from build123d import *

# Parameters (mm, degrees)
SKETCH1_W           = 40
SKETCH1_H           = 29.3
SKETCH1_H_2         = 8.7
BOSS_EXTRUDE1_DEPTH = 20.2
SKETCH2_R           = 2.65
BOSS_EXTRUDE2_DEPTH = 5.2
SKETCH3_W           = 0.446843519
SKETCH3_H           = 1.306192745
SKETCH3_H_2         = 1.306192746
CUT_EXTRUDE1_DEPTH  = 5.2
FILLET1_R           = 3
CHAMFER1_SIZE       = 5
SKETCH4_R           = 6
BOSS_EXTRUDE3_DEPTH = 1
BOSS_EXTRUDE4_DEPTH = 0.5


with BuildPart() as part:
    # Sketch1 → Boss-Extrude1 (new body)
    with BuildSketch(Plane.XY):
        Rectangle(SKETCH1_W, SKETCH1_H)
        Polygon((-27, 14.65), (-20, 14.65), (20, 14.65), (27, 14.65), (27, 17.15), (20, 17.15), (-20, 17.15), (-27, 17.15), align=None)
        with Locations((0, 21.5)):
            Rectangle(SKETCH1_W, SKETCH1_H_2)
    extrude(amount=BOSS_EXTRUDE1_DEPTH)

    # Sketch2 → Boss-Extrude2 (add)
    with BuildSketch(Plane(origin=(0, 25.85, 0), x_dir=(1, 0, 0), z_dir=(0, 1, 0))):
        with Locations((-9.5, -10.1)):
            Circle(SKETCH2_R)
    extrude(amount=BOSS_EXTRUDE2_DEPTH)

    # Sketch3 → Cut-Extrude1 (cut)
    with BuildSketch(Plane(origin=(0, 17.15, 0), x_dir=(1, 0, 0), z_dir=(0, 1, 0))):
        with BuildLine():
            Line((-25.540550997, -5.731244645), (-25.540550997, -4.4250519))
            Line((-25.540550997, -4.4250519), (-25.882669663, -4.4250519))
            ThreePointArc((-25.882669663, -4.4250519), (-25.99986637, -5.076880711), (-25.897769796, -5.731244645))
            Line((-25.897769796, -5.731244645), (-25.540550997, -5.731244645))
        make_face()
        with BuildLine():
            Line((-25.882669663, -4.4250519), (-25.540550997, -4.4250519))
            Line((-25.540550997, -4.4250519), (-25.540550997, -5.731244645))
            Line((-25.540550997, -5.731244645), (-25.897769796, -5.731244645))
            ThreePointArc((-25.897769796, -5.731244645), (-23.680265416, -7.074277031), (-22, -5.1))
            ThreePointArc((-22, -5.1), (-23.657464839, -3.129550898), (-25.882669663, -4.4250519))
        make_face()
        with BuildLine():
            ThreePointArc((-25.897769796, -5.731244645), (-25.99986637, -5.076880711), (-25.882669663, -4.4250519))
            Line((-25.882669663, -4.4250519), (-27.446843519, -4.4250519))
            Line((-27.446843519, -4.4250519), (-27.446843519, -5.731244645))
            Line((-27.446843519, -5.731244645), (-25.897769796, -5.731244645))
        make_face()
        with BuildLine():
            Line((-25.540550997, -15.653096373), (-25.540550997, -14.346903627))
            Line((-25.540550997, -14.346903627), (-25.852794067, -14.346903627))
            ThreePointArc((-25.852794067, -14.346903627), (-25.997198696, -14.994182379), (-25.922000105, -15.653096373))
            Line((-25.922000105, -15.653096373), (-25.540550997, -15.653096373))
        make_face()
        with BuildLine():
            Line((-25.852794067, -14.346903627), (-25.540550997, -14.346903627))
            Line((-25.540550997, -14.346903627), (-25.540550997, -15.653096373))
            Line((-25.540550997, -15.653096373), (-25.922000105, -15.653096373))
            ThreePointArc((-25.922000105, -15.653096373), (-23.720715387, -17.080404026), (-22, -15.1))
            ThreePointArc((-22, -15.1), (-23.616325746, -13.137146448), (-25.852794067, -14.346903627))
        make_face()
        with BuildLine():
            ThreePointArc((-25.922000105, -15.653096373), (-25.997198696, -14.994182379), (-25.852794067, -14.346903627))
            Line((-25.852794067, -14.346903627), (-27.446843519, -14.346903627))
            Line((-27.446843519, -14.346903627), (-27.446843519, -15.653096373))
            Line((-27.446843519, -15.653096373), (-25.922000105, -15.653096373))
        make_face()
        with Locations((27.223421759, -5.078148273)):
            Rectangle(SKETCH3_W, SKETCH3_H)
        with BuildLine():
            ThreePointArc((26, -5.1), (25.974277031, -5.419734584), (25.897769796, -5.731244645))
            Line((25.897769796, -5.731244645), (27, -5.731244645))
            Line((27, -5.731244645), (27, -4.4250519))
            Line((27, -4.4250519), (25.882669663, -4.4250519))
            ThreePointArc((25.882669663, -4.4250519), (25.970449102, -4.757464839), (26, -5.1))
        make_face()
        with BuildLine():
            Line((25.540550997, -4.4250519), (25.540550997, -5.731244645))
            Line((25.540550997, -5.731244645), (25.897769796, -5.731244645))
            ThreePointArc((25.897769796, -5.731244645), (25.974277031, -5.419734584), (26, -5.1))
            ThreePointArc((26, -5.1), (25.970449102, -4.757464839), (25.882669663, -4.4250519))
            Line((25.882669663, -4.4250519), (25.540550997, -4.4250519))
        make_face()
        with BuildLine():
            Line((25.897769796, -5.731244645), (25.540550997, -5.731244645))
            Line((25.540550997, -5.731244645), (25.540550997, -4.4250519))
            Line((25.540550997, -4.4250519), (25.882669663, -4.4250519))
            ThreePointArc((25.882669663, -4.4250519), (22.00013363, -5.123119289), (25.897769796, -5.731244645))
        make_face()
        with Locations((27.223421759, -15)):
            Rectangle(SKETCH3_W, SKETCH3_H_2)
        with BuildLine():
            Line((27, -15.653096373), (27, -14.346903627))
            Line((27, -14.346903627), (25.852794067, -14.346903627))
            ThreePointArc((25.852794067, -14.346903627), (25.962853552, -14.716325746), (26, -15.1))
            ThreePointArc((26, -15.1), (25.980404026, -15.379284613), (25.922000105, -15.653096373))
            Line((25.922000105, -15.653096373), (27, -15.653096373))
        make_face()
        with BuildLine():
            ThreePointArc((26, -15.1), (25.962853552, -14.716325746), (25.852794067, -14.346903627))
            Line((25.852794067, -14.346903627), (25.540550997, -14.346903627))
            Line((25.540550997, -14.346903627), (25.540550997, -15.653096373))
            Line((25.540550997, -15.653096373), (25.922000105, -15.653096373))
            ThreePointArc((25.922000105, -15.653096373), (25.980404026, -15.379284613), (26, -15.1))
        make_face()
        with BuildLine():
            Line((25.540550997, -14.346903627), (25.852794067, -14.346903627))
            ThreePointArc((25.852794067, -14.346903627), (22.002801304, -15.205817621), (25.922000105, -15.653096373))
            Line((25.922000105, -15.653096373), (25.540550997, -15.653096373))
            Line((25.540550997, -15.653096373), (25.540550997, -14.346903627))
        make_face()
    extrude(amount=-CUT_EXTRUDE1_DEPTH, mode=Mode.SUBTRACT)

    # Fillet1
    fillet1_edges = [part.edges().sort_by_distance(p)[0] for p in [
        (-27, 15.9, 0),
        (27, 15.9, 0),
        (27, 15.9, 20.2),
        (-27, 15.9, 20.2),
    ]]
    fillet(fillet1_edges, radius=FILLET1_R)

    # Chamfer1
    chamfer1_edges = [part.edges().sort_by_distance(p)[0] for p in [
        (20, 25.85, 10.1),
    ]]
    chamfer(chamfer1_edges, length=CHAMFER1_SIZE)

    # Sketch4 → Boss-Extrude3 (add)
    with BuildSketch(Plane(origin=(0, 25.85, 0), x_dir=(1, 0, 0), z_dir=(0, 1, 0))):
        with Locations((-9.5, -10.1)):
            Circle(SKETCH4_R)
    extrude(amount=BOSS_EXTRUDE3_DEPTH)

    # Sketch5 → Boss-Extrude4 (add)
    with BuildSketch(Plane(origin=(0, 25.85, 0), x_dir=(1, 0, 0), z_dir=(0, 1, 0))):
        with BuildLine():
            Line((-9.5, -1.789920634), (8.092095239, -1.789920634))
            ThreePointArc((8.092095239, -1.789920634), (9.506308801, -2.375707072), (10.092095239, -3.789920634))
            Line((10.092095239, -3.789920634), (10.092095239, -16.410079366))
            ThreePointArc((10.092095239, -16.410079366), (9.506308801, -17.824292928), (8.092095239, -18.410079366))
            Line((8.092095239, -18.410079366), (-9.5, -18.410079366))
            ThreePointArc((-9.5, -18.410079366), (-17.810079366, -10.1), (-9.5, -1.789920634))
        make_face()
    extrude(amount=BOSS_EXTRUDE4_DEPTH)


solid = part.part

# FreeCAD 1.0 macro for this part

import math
import FreeCAD as App
import Part
import Sketcher
from FreeCAD import Vector


def edges_at(feature, points):
    """Names of the edges that pass closest to the given points."""
    edges = feature.Shape.Edges
    near = lambda p: min(range(len(edges)), key=lambda i: edges[i].distToShape(Part.Vertex(*p))[0])
    return sorted({f"Edge{near(p) + 1}" for p in points})


def add_polygon(sketch, points):
    """Adds a closed chain of lines whose ends are joined by coincident constraints."""
    first, n = sketch.GeometryCount, len(points)
    for a, b in zip(points, points[1:] + points[:1]):
        sketch.addGeometry(Part.LineSegment(App.Vector(*a, 0), App.Vector(*b, 0)), False)
    for i in range(n):
        sketch.addConstraint(Sketcher.Constraint("Coincident", first + i, 2, first + (i + 1) % n, 1))

doc = App.newDocument("Part")
params = doc.addObject("Spreadsheet::Sheet", "Params")
for row, (alias, value) in enumerate([
    ("sketch1_width", "40 mm"),
    ("sketch1_width2", "7 mm"),
    ("sketch1_height", "29.3 mm"),
    ("sketch1_height2", "2.5 mm"),
    ("sketch1_height3", "8.7 mm"),
    ("pad1_length", "20.2 mm"),
    ("sketch2_diameter", "5.3 mm"),
    ("pad2_length", "5.2 mm"),
    ("sketch3_radius", "2 mm"),
    ("pocket1_length", "5.2 mm"),
    ("fillet_radius", "3 mm"),
    ("chamfer_size", "5 mm"),
    ("sketch4_diameter", "12 mm"),
    ("pad3_length", "1 mm"),
    ("sketch5_radius", "2 mm"),
    ("pad4_length", "0.5 mm"),
], start=1):
    params.set(f"A{row}", alias)
    params.set(f"B{row}", "=" + value)
    params.setAlias(f"B{row}", alias)

body = doc.addObject("PartDesign::Body", "Body")

# Sketch on XY plane
sketch1 = doc.addObject("Sketcher::SketchObject", "Sketch")
body.addObject(sketch1)
sketch1.AttachmentSupport = (doc.XY_Plane, [""])
sketch1.MapMode = "FlatFace"
add_polygon(sketch1, [(-20, 14.7), (-20, -14.7), (20, -14.7), (20, 14.7), (27, 14.7), (27, 17.1), (20, 17.1), (20, 25.9), (-20, 25.9), (-20, 17.1), (-27, 17.1), (-27, 14.7)])  # lines 0-11
sketch1.addConstraint(Sketcher.Constraint("Vertical", 0))
sketch1.addConstraint(Sketcher.Constraint("Horizontal", 1))
sketch1.addConstraint(Sketcher.Constraint("Vertical", 2))
sketch1.addConstraint(Sketcher.Constraint("Horizontal", 3))
sketch1.addConstraint(Sketcher.Constraint("Vertical", 4))
sketch1.addConstraint(Sketcher.Constraint("Horizontal", 5))
sketch1.addConstraint(Sketcher.Constraint("Vertical", 6))
sketch1.addConstraint(Sketcher.Constraint("Horizontal", 7))
sketch1.addConstraint(Sketcher.Constraint("Vertical", 8))
sketch1.addConstraint(Sketcher.Constraint("Horizontal", 9))
sketch1.addConstraint(Sketcher.Constraint("Vertical", 10))
sketch1.addConstraint(Sketcher.Constraint("Horizontal", 11))
sketch1.addConstraint(Sketcher.Constraint("Symmetric", 0, 2, 2, 2, -1, 1))
sketch1.addConstraint(Sketcher.Constraint("Symmetric", 5, 2, 8, 2, -2))
sketch1.addConstraint(Sketcher.Constraint("Symmetric", 3, 2, 10, 2, -2))
sketch1.addConstraint(Sketcher.Constraint("Vertical", 2, 2, 5, 2))
sketch1.addConstraint(Sketcher.Constraint("DistanceX", 1, 1, 1, 2, 40.0))
sketch1.addConstraint(Sketcher.Constraint("DistanceX", 3, 1, 3, 2, 7.0))
sketch1.addConstraint(Sketcher.Constraint("DistanceY", 0, 2, 0, 1, 29.3))
sketch1.addConstraint(Sketcher.Constraint("DistanceY", 4, 1, 4, 2, 2.5))
sketch1.addConstraint(Sketcher.Constraint("DistanceY", 6, 1, 6, 2, 8.7))
sketch1.setExpression("Constraints[28]", "Params.sketch1_width")
sketch1.setExpression("Constraints[29]", "Params.sketch1_width2")
sketch1.setExpression("Constraints[30]", "Params.sketch1_height")
sketch1.setExpression("Constraints[31]", "Params.sketch1_height2")
sketch1.setExpression("Constraints[32]", "Params.sketch1_height3")
pad1 = doc.addObject("PartDesign::Pad", "Pad")
body.addObject(pad1)
pad1.Profile = sketch1
pad1.setExpression("Length", "Params.pad1_length")

# Sketch on XZ plane
sketch2 = doc.addObject("Sketcher::SketchObject", "Sketch001")
body.addObject(sketch2)
sketch2.AttachmentSupport = (doc.XZ_Plane, [""])
sketch2.MapMode = "FlatFace"
sketch2.AttachmentOffset = App.Placement(Vector(0, 0, -25.85), App.Rotation())
sketch2.addGeometry(Part.Circle(Vector(-9.5, 10.1, 0), Vector(0, 0, 1), 2.6), False)
sketch2.addConstraint(Sketcher.Constraint("Diameter", 0, 5.3))
sketch2.addConstraint(Sketcher.Constraint("DistanceX", 0, 3, -1, 1, 9.5))
sketch2.addConstraint(Sketcher.Constraint("DistanceY", -1, 1, 0, 3, 10.1))
sketch2.setExpression("Constraints[0]", "Params.sketch2_diameter")
pad2 = doc.addObject("PartDesign::Pad", "Pad001")
body.addObject(pad2)
pad2.Profile = sketch2
pad2.setExpression("Length", "Params.pad2_length")
pad2.Reversed = True

# Sketch on XZ plane
sketch3 = doc.addObject("Sketcher::SketchObject", "Sketch002")
body.addObject(sketch3)
sketch3.AttachmentSupport = (doc.XZ_Plane, [""])
sketch3.MapMode = "FlatFace"
sketch3.AttachmentOffset = App.Placement(Vector(0, 0, -17.15), App.Rotation())
sketch3.addGeometry(Part.ArcOfCircle(Part.Circle(Vector(-24, 5.1, 0), Vector(0, 0, 1), 2), math.radians(0), math.radians(162)), False)
sketch3.addGeometry(Part.ArcOfCircle(Part.Circle(Vector(-24, 5.1, 0), Vector(0, 0, 1), 2), math.radians(-160), math.radians(0)), False)
sketch3.addGeometry(Part.LineSegment(Vector(-25.88, 4.43, 0), Vector(-27.45, 4.43, 0)), False)
sketch3.addGeometry(Part.LineSegment(Vector(-27.45, 4.43, 0), Vector(-27.45, 5.73, 0)), False)
sketch3.addGeometry(Part.LineSegment(Vector(-27.45, 5.73, 0), Vector(-25.9, 5.73, 0)), False)
sketch3.addGeometry(Part.ArcOfCircle(Part.Circle(Vector(-24, 15.1, 0), Vector(0, 0, 1), 2), math.radians(0), math.radians(164)), False)
sketch3.addGeometry(Part.ArcOfCircle(Part.Circle(Vector(-24, 15.1, 0), Vector(0, 0, 1), 2), math.radians(-158), math.radians(0)), False)
sketch3.addGeometry(Part.LineSegment(Vector(-25.85, 14.35, 0), Vector(-27.45, 14.35, 0)), False)
sketch3.addGeometry(Part.LineSegment(Vector(-27.45, 14.35, 0), Vector(-27.45, 15.65, 0)), False)
sketch3.addGeometry(Part.LineSegment(Vector(-27.45, 15.65, 0), Vector(-25.92, 15.65, 0)), False)
sketch3.addGeometry(Part.LineSegment(Vector(27, 4.43, 0), Vector(25.88, 4.43, 0)), False)
sketch3.addGeometry(Part.ArcOfCircle(Part.Circle(Vector(24, 5.1, 0), Vector(0, 0, 1), 2), math.radians(18), math.radians(340)), False)
sketch3.addGeometry(Part.LineSegment(Vector(25.9, 5.73, 0), Vector(27, 5.73, 0)), False)
sketch3.addGeometry(Part.LineSegment(Vector(27, 5.73, 0), Vector(27.45, 5.73, 0)), False)
sketch3.addGeometry(Part.LineSegment(Vector(27.45, 5.73, 0), Vector(27.45, 4.43, 0)), False)
sketch3.addGeometry(Part.LineSegment(Vector(27.45, 4.43, 0), Vector(27, 4.43, 0)), False)
sketch3.addGeometry(Part.LineSegment(Vector(27.45, 14.35, 0), Vector(25.85, 14.35, 0)), False)
sketch3.addGeometry(Part.ArcOfCircle(Part.Circle(Vector(24, 15.1, 0), Vector(0, 0, 1), 2), math.radians(16), math.radians(338)), False)
sketch3.addGeometry(Part.LineSegment(Vector(25.92, 15.65, 0), Vector(27.45, 15.65, 0)), False)
sketch3.addGeometry(Part.LineSegment(Vector(27.45, 15.65, 0), Vector(27.45, 14.35, 0)), False)
sketch3.addConstraint(Sketcher.Constraint("Tangent", 0, 1, 1, 2))
sketch3.addConstraint(Sketcher.Constraint("Coincident", 1, 1, 2, 1))
sketch3.addConstraint(Sketcher.Constraint("Coincident", 2, 2, 3, 1))
sketch3.addConstraint(Sketcher.Constraint("Coincident", 3, 2, 4, 1))
sketch3.addConstraint(Sketcher.Constraint("Coincident", 4, 2, 0, 2))
sketch3.addConstraint(Sketcher.Constraint("Tangent", 5, 1, 6, 2))
sketch3.addConstraint(Sketcher.Constraint("Coincident", 6, 1, 7, 1))
sketch3.addConstraint(Sketcher.Constraint("Coincident", 7, 2, 8, 1))
sketch3.addConstraint(Sketcher.Constraint("Coincident", 8, 2, 9, 1))
sketch3.addConstraint(Sketcher.Constraint("Coincident", 9, 2, 5, 2))
sketch3.addConstraint(Sketcher.Constraint("Coincident", 10, 2, 11, 2))
sketch3.addConstraint(Sketcher.Constraint("Coincident", 11, 1, 12, 1))
sketch3.addConstraint(Sketcher.Constraint("Coincident", 12, 2, 13, 1))
sketch3.addConstraint(Sketcher.Constraint("Coincident", 13, 2, 14, 1))
sketch3.addConstraint(Sketcher.Constraint("Coincident", 14, 2, 15, 1))
sketch3.addConstraint(Sketcher.Constraint("Coincident", 15, 2, 10, 1))
sketch3.addConstraint(Sketcher.Constraint("Coincident", 16, 2, 17, 2))
sketch3.addConstraint(Sketcher.Constraint("Coincident", 17, 1, 18, 1))
sketch3.addConstraint(Sketcher.Constraint("Coincident", 18, 2, 19, 1))
sketch3.addConstraint(Sketcher.Constraint("Coincident", 19, 2, 16, 1))
sketch3.addConstraint(Sketcher.Constraint("Horizontal", 2))
sketch3.addConstraint(Sketcher.Constraint("Vertical", 3))
sketch3.addConstraint(Sketcher.Constraint("Horizontal", 4))
sketch3.addConstraint(Sketcher.Constraint("Horizontal", 7))
sketch3.addConstraint(Sketcher.Constraint("Vertical", 8))
sketch3.addConstraint(Sketcher.Constraint("Horizontal", 9))
sketch3.addConstraint(Sketcher.Constraint("Horizontal", 10))
sketch3.addConstraint(Sketcher.Constraint("Horizontal", 12))
sketch3.addConstraint(Sketcher.Constraint("Horizontal", 13))
sketch3.addConstraint(Sketcher.Constraint("Vertical", 14))
sketch3.addConstraint(Sketcher.Constraint("Horizontal", 15))
sketch3.addConstraint(Sketcher.Constraint("Horizontal", 16))
sketch3.addConstraint(Sketcher.Constraint("Horizontal", 18))
sketch3.addConstraint(Sketcher.Constraint("Vertical", 19))
sketch3.addConstraint(Sketcher.Constraint("Equal", 0, 1))
sketch3.addConstraint(Sketcher.Constraint("Equal", 1, 5))
sketch3.addConstraint(Sketcher.Constraint("Equal", 5, 6))
sketch3.addConstraint(Sketcher.Constraint("Equal", 6, 11))
sketch3.addConstraint(Sketcher.Constraint("Equal", 11, 17))
sketch3.addConstraint(Sketcher.Constraint("Symmetric", 0, 3, 11, 3, -2))
sketch3.addConstraint(Sketcher.Constraint("Symmetric", 5, 3, 17, 3, -2))
sketch3.addConstraint(Sketcher.Constraint("Symmetric", 3, 2, 13, 2, -2))
sketch3.addConstraint(Sketcher.Constraint("Symmetric", 8, 2, 18, 2, -2))
sketch3.addConstraint(Sketcher.Constraint("Horizontal", 11, 3, 0, 1))
sketch3.addConstraint(Sketcher.Constraint("Horizontal", 17, 3, 5, 1))
sketch3.addConstraint(Sketcher.Constraint("Horizontal", 2, 2, 10, 2))
sketch3.addConstraint(Sketcher.Constraint("Horizontal", 7, 2, 16, 2))
sketch3.addConstraint(Sketcher.Constraint("Vertical", 1, 3, 5, 3))
sketch3.addConstraint(Sketcher.Constraint("Vertical", 3, 2, 7, 2))
sketch3.addConstraint(Sketcher.Constraint("Vertical", 12, 2, 15, 2))
sketch3.addConstraint(Sketcher.Constraint("Equal", 3, 8))
sketch3.addConstraint(Sketcher.Constraint("Radius", 0, 2.0))
sketch3.addConstraint(Sketcher.Constraint("DistanceX", 0, 3, -1, 1, 24.0))
sketch3.addConstraint(Sketcher.Constraint("DistanceX", -1, 1, 12, 2, 27.0))
sketch3.addConstraint(Sketcher.Constraint("DistanceY", 0, 3, 5, 3, 10.0))
sketch3.addConstraint(Sketcher.Constraint("DistanceY", -1, 1, 0, 3, 5.1))
sketch3.addConstraint(Sketcher.Constraint("DistanceX", 9, 2, -1, 1, 25.922))
sketch3.addConstraint(Sketcher.Constraint("DistanceX", 7, 2, 7, 1, 1.594049))
sketch3.addConstraint(Sketcher.Constraint("DistanceX", 10, 2, 10, 1, 1.11733))
sketch3.addConstraint(Sketcher.Constraint("DistanceX", 12, 1, 12, 2, 1.10223))
sketch3.setExpression("Constraints[51]", "Params.sketch3_radius")
pocket1 = doc.addObject("PartDesign::Pocket", "Pocket")
body.addObject(pocket1)
pocket1.Profile = sketch3
pocket1.setExpression("Length", "Params.pocket1_length")
pocket1.Reversed = True
doc.recompute()

fillet = doc.addObject("PartDesign::Fillet", "Fillet")
body.addObject(fillet)
fillet.Base = (pocket1, edges_at(pocket1, [
    (-27, 15.9, 0),
    (27, 15.9, 0),
    (27, 15.9, 20.2),
    (-27, 15.9, 20.2),
]))
fillet.setExpression("Radius", "Params.fillet_radius")
doc.recompute()

chamfer = doc.addObject("PartDesign::Chamfer", "Chamfer")
body.addObject(chamfer)
chamfer.Base = (fillet, edges_at(fillet, [(20, 25.85, 10.1)]))
chamfer.setExpression("Size", "Params.chamfer_size")

# Sketch on XZ plane
sketch4 = doc.addObject("Sketcher::SketchObject", "Sketch003")
body.addObject(sketch4)
sketch4.AttachmentSupport = (doc.XZ_Plane, [""])
sketch4.MapMode = "FlatFace"
sketch4.AttachmentOffset = App.Placement(Vector(0, 0, -25.85), App.Rotation())
sketch4.addGeometry(Part.Circle(Vector(-10, 10, 0), Vector(0, 0, 1), 6), False)
sketch4.addConstraint(Sketcher.Constraint("Diameter", 0, 12.0))
sketch4.addConstraint(Sketcher.Constraint("DistanceX", 0, 3, -1, 1, 9.5))
sketch4.addConstraint(Sketcher.Constraint("DistanceY", -1, 1, 0, 3, 10.1))
sketch4.setExpression("Constraints[0]", "Params.sketch4_diameter")
pad3 = doc.addObject("PartDesign::Pad", "Pad002")
body.addObject(pad3)
pad3.Profile = sketch4
pad3.setExpression("Length", "Params.pad3_length")
pad3.Reversed = True

# Sketch on XZ plane
sketch5 = doc.addObject("Sketcher::SketchObject", "Sketch004")
body.addObject(sketch5)
sketch5.AttachmentSupport = (doc.XZ_Plane, [""])
sketch5.MapMode = "FlatFace"
sketch5.AttachmentOffset = App.Placement(Vector(0, 0, -25.85), App.Rotation())
sketch5.addGeometry(Part.LineSegment(Vector(8.1, 1.8, 0), Vector(-9.5, 1.8, 0)), False)
sketch5.addGeometry(Part.ArcOfCircle(Part.Circle(Vector(-9.5, 10.1, 0), Vector(0, 0, 1), 8.3), math.radians(90), math.radians(270)), False)
sketch5.addGeometry(Part.LineSegment(Vector(-9.5, 18.4, 0), Vector(8.1, 18.4, 0)), False)
sketch5.addGeometry(Part.ArcOfCircle(Part.Circle(Vector(8.1, 16.4, 0), Vector(0, 0, 1), 2), math.radians(0), math.radians(90)), False)
sketch5.addGeometry(Part.LineSegment(Vector(10.1, 16.4, 0), Vector(10.1, 3.8, 0)), False)
sketch5.addGeometry(Part.ArcOfCircle(Part.Circle(Vector(8.1, 3.8, 0), Vector(0, 0, 1), 2), math.radians(-90), math.radians(0)), False)
sketch5.addConstraint(Sketcher.Constraint("Tangent", 0, 2, 1, 2))
sketch5.addConstraint(Sketcher.Constraint("Tangent", 1, 1, 2, 1))
sketch5.addConstraint(Sketcher.Constraint("Tangent", 2, 2, 3, 2))
sketch5.addConstraint(Sketcher.Constraint("Tangent", 3, 1, 4, 1))
sketch5.addConstraint(Sketcher.Constraint("Tangent", 4, 2, 5, 2))
sketch5.addConstraint(Sketcher.Constraint("Tangent", 5, 1, 0, 1))
sketch5.addConstraint(Sketcher.Constraint("Horizontal", 0))
sketch5.addConstraint(Sketcher.Constraint("Horizontal", 2))
sketch5.addConstraint(Sketcher.Constraint("Vertical", 4))
sketch5.addConstraint(Sketcher.Constraint("Equal", 3, 5))
sketch5.addConstraint(Sketcher.Constraint("Radius", 3, 2.0))
sketch5.addConstraint(Sketcher.Constraint("DistanceX", 1, 3, -1, 1, 9.5))
sketch5.addConstraint(Sketcher.Constraint("DistanceY", -1, 1, 1, 3, 10.1))
sketch5.addConstraint(Sketcher.Constraint("Radius", 1, 8.310079))
sketch5.addConstraint(Sketcher.Constraint("DistanceX", 0, 2, 0, 1, 17.592095))
sketch5.setExpression("Constraints[10]", "Params.sketch5_radius")
pad4 = doc.addObject("PartDesign::Pad", "Pad003")
body.addObject(pad4)
pad4.Profile = sketch5
pad4.setExpression("Length", "Params.pad4_length")
pad4.Reversed = True

doc.recompute()
